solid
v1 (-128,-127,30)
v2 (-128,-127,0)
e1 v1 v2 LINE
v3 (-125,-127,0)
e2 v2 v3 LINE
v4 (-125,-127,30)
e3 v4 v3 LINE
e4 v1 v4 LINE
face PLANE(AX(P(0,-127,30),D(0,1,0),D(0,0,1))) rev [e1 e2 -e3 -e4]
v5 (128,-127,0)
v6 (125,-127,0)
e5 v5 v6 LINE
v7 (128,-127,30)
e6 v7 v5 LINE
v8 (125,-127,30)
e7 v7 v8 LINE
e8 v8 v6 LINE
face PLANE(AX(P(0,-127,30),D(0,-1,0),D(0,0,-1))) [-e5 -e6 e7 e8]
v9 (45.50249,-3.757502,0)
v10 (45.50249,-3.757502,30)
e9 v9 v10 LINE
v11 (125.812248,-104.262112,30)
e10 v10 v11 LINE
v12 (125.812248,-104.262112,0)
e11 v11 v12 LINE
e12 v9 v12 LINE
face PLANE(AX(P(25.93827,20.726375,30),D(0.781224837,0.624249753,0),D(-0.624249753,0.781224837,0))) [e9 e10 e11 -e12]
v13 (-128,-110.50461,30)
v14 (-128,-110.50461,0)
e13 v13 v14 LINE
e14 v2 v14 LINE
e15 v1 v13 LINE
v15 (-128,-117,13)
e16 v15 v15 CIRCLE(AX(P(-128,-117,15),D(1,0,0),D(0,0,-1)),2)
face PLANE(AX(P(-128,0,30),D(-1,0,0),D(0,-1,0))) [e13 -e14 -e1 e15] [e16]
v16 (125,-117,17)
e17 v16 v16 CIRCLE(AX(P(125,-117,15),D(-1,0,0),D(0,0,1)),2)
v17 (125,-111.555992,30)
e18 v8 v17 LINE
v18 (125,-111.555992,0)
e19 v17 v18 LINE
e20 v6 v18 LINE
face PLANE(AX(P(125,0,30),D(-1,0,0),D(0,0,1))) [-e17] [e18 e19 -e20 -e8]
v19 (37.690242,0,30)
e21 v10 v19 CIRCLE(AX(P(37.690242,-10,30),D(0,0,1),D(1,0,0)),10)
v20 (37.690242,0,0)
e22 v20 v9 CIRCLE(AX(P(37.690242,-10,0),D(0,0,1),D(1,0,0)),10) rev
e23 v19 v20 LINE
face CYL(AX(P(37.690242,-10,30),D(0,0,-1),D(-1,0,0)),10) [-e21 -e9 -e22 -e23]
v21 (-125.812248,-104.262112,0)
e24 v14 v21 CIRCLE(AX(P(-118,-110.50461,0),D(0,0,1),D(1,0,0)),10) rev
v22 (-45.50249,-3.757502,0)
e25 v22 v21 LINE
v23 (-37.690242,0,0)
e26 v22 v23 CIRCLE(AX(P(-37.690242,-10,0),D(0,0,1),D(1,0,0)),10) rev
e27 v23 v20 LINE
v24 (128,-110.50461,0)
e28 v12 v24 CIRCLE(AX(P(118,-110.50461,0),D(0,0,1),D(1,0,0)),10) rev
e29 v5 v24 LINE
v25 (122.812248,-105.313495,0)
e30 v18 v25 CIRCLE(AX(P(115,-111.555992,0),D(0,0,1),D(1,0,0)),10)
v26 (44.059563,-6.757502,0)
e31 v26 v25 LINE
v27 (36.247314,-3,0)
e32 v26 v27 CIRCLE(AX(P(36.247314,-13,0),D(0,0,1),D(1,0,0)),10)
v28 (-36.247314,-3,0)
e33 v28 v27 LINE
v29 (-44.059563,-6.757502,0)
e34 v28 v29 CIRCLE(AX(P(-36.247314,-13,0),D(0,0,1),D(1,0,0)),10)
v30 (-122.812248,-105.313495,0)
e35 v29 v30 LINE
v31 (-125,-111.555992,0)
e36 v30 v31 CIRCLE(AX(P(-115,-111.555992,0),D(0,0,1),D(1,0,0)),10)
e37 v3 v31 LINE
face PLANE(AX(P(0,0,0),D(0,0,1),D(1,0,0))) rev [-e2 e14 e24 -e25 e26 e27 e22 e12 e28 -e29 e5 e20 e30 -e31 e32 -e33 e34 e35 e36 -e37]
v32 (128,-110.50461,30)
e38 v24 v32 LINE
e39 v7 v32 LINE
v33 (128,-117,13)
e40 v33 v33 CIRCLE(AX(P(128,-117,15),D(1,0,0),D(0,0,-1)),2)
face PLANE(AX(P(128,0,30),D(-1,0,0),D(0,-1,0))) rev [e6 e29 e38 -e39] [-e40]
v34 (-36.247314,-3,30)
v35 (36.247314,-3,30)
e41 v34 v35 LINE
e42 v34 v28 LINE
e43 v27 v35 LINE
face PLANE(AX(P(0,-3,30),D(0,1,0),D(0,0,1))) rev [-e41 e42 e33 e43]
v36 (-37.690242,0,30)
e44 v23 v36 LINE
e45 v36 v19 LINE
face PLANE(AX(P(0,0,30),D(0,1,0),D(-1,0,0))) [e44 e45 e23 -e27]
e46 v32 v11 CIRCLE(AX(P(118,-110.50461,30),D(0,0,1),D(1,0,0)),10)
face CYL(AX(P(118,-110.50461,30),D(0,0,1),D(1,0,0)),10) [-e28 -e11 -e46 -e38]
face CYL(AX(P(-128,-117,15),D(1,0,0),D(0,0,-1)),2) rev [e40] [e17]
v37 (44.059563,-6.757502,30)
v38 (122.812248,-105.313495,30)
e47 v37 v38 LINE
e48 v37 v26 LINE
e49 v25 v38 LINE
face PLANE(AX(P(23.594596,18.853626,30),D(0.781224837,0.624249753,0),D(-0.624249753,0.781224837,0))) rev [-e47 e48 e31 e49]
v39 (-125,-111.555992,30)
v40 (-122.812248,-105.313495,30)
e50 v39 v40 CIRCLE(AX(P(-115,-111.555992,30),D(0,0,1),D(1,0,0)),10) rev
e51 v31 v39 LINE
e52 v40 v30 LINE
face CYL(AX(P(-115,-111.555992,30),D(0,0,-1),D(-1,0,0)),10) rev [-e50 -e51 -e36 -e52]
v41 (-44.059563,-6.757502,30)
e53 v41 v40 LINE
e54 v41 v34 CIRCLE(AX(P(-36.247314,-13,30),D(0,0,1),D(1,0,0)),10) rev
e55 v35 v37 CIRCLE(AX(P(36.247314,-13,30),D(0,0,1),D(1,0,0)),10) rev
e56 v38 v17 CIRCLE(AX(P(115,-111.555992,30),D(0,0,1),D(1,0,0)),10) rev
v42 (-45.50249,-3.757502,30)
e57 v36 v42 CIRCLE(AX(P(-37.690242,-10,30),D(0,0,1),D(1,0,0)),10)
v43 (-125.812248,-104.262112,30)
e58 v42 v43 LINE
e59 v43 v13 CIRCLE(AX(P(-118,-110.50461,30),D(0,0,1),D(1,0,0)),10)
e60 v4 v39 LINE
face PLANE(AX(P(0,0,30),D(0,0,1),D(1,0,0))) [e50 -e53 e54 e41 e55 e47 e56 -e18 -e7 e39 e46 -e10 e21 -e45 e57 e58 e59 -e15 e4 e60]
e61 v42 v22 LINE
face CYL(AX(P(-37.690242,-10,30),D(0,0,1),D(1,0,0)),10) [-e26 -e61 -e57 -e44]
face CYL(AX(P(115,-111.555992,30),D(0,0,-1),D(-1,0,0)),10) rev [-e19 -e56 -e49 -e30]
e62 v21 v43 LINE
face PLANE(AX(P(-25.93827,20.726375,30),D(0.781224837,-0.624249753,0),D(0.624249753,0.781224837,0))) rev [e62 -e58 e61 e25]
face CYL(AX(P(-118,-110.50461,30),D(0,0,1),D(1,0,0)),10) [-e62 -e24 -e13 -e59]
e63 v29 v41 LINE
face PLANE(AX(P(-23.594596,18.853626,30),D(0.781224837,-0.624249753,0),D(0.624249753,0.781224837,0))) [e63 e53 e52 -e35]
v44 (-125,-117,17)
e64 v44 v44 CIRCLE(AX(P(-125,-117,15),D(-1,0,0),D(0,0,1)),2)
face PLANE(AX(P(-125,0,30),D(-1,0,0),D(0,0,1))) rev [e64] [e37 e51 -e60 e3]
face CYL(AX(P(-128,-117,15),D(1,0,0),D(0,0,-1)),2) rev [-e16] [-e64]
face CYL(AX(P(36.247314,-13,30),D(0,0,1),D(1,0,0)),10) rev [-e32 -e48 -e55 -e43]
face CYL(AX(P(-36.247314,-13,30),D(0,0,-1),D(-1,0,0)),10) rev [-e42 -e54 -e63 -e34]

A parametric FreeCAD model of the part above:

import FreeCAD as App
import Part
import Sketcher
Q = App.Units.Quantity


def edges_at(feature, points):
    """Names of the edges that pass closest to the given points."""
    edges = feature.Shape.Edges
    near = lambda p: min(range(len(edges)), key=lambda i: edges[i].distToShape(Part.Vertex(*p))[0])
    return sorted({f"Edge{near(p) + 1}" for p in points})

doc = App.newDocument("Part")
params = doc.addObject("Spreadsheet::Sheet", "Params")
for row, (alias, value) in enumerate([
    ("sketch1_width", "3 mm"),
    ("sketch1_width2", "85 mm"),
    ("sketch1_height", "20 mm"),
    ("pad1_length", "30 mm"),
    ("fillet_radius", "10 mm"),
    ("sketch2_diameter", "4 mm"),
], start=1):
    params.set(f"A{row}", alias)
    params.set(f"B{row}", "=" + value)
    params.setAlias(f"B{row}", alias)

body = doc.addObject("PartDesign::Body", "Body")

sketch1 = body.newObject("Sketcher::SketchObject", "Sketch")
sketch1.AttachmentSupport = (doc.getObject("XY_Plane"), [""])
sketch1.MapMode = "FlatFace"
sketch1.addGeometry([
    Part.LineSegment(App.Vector(125, -127, 0), App.Vector(128, -127, 0)),
    Part.LineSegment(App.Vector(128, -127, 0), App.Vector(128, -107, 0)),
    Part.LineSegment(App.Vector(128, -107, 0), App.Vector(42.5, 0, 0)),
    Part.LineSegment(App.Vector(42.5, 0, 0), App.Vector(-42.5, 0, 0)),
    Part.LineSegment(App.Vector(-42.5, 0, 0), App.Vector(-128, -107, 0)),
    Part.LineSegment(App.Vector(-128, -107, 0), App.Vector(-128, -127, 0)),
    Part.LineSegment(App.Vector(-128, -127, 0), App.Vector(-125, -127, 0)),
    Part.LineSegment(App.Vector(-125, -127, 0), App.Vector(-125, -108.1, 0)),
    Part.LineSegment(App.Vector(-125, -108.1, 0), App.Vector(-41.1, -3, 0)),
    Part.LineSegment(App.Vector(-41.1, -3, 0), App.Vector(41.1, -3, 0)),
    Part.LineSegment(App.Vector(41.1, -3, 0), App.Vector(125, -108.1, 0)),
    Part.LineSegment(App.Vector(125, -108.1, 0), App.Vector(125, -127, 0)),
], False)
sketch1.addConstraint([
    Sketcher.Constraint("Coincident", 0, 2, 1, 1),
    Sketcher.Constraint("Coincident", 1, 2, 2, 1),
    Sketcher.Constraint("Coincident", 2, 2, 3, 1),
    Sketcher.Constraint("Coincident", 3, 2, 4, 1),
    Sketcher.Constraint("Coincident", 4, 2, 5, 1),
    Sketcher.Constraint("Coincident", 5, 2, 6, 1),
    Sketcher.Constraint("Coincident", 6, 2, 7, 1),
    Sketcher.Constraint("Coincident", 7, 2, 8, 1),
    Sketcher.Constraint("Coincident", 8, 2, 9, 1),
    Sketcher.Constraint("Coincident", 9, 2, 10, 1),
    Sketcher.Constraint("Coincident", 10, 2, 11, 1),
    Sketcher.Constraint("Coincident", 11, 2, 0, 1),
    Sketcher.Constraint("Horizontal", 0),
    Sketcher.Constraint("Vertical", 1),
    Sketcher.Constraint("Horizontal", 3),
    Sketcher.Constraint("Vertical", 5),
    Sketcher.Constraint("Horizontal", 6),
    Sketcher.Constraint("Vertical", 7),
    Sketcher.Constraint("Horizontal", 9),
    Sketcher.Constraint("Vertical", 11),
    Sketcher.Constraint("Symmetric", 2, 2, 3, 2, -1, 1),
    Sketcher.Constraint("Symmetric", 1, 2, 4, 2, -2),
    Sketcher.Constraint("Symmetric", 7, 2, 10, 2, -2),
    Sketcher.Constraint("Parallel", 4, 8),
    Sketcher.Constraint("Parallel", 2, 10),
    Sketcher.Constraint("Horizontal", 0, 2, 5, 2),
    Sketcher.Constraint("DistanceX", 0, 1, 0, 2, Q("3 mm")),
    Sketcher.Constraint("DistanceX", 3, 2, 3, 1, Q("85 mm")),
    Sketcher.Constraint("DistanceY", 1, 1, 1, 2, Q("20 mm")),
    Sketcher.Constraint("DistanceX", -1, 1, 0, 2, Q("128 mm")),
    Sketcher.Constraint("DistanceY", 0, 2, -1, 1, Q("127 mm")),
    Sketcher.Constraint("DistanceY", 8, 2, -1, 1, Q("3 mm")),
    Sketcher.Constraint("Distance", 8, Q("134.470101 mm")),
])
sketch1.setExpression("Constraints[26]", "Params.sketch1_width")
sketch1.setExpression("Constraints[27]", "Params.sketch1_width2")
sketch1.setExpression("Constraints[28]", "Params.sketch1_height")
pad1 = body.newObject("PartDesign::Pad", "Pad")
pad1.Profile = sketch1
pad1.setExpression("Length", "Params.pad1_length")
doc.recompute()

fillet = body.newObject("PartDesign::Fillet", "Fillet")
fillet.Base = (pad1, edges_at(pad1, [
    (125, -108.051, 15),
    (41.057, -3, 15),
    (-41.057, -3, 15),
    (-125, -108.051, 15),
    (-128, -107, 15),
    (-42.5, 0, 15),
    (42.5, 0, 15),
    (128, -107, 15),
]))
fillet.setExpression("Radius", "Params.fillet_radius")

sketch2 = body.newObject("Sketcher::SketchObject", "Sketch001")
sketch2.AttachmentSupport = (doc.getObject("YZ_Plane"), [""])
sketch2.MapMode = "FlatFace"
sketch2.AttachmentOffset = App.Placement(App.Vector(0, 0, 128), App.Rotation())
sketch2.addGeometry(Part.Circle(App.Vector(-117, 15, 0), App.Vector(0, 0, 1), 2), False)
sketch2.addConstraint([
    Sketcher.Constraint("Diameter", 0, Q("4 mm")),
    Sketcher.Constraint("DistanceX", 0, 3, -1, 1, Q("117 mm")),
    Sketcher.Constraint("DistanceY", -1, 1, 0, 3, Q("15 mm")),
])
sketch2.setExpression("Constraints[0]", "Params.sketch2_diameter")
pocket1 = body.newObject("PartDesign::Pocket", "Pocket")
pocket1.Profile = sketch2
pocket1.Type = "ThroughAll"
pocket1.Midplane = True

doc.recompute()
